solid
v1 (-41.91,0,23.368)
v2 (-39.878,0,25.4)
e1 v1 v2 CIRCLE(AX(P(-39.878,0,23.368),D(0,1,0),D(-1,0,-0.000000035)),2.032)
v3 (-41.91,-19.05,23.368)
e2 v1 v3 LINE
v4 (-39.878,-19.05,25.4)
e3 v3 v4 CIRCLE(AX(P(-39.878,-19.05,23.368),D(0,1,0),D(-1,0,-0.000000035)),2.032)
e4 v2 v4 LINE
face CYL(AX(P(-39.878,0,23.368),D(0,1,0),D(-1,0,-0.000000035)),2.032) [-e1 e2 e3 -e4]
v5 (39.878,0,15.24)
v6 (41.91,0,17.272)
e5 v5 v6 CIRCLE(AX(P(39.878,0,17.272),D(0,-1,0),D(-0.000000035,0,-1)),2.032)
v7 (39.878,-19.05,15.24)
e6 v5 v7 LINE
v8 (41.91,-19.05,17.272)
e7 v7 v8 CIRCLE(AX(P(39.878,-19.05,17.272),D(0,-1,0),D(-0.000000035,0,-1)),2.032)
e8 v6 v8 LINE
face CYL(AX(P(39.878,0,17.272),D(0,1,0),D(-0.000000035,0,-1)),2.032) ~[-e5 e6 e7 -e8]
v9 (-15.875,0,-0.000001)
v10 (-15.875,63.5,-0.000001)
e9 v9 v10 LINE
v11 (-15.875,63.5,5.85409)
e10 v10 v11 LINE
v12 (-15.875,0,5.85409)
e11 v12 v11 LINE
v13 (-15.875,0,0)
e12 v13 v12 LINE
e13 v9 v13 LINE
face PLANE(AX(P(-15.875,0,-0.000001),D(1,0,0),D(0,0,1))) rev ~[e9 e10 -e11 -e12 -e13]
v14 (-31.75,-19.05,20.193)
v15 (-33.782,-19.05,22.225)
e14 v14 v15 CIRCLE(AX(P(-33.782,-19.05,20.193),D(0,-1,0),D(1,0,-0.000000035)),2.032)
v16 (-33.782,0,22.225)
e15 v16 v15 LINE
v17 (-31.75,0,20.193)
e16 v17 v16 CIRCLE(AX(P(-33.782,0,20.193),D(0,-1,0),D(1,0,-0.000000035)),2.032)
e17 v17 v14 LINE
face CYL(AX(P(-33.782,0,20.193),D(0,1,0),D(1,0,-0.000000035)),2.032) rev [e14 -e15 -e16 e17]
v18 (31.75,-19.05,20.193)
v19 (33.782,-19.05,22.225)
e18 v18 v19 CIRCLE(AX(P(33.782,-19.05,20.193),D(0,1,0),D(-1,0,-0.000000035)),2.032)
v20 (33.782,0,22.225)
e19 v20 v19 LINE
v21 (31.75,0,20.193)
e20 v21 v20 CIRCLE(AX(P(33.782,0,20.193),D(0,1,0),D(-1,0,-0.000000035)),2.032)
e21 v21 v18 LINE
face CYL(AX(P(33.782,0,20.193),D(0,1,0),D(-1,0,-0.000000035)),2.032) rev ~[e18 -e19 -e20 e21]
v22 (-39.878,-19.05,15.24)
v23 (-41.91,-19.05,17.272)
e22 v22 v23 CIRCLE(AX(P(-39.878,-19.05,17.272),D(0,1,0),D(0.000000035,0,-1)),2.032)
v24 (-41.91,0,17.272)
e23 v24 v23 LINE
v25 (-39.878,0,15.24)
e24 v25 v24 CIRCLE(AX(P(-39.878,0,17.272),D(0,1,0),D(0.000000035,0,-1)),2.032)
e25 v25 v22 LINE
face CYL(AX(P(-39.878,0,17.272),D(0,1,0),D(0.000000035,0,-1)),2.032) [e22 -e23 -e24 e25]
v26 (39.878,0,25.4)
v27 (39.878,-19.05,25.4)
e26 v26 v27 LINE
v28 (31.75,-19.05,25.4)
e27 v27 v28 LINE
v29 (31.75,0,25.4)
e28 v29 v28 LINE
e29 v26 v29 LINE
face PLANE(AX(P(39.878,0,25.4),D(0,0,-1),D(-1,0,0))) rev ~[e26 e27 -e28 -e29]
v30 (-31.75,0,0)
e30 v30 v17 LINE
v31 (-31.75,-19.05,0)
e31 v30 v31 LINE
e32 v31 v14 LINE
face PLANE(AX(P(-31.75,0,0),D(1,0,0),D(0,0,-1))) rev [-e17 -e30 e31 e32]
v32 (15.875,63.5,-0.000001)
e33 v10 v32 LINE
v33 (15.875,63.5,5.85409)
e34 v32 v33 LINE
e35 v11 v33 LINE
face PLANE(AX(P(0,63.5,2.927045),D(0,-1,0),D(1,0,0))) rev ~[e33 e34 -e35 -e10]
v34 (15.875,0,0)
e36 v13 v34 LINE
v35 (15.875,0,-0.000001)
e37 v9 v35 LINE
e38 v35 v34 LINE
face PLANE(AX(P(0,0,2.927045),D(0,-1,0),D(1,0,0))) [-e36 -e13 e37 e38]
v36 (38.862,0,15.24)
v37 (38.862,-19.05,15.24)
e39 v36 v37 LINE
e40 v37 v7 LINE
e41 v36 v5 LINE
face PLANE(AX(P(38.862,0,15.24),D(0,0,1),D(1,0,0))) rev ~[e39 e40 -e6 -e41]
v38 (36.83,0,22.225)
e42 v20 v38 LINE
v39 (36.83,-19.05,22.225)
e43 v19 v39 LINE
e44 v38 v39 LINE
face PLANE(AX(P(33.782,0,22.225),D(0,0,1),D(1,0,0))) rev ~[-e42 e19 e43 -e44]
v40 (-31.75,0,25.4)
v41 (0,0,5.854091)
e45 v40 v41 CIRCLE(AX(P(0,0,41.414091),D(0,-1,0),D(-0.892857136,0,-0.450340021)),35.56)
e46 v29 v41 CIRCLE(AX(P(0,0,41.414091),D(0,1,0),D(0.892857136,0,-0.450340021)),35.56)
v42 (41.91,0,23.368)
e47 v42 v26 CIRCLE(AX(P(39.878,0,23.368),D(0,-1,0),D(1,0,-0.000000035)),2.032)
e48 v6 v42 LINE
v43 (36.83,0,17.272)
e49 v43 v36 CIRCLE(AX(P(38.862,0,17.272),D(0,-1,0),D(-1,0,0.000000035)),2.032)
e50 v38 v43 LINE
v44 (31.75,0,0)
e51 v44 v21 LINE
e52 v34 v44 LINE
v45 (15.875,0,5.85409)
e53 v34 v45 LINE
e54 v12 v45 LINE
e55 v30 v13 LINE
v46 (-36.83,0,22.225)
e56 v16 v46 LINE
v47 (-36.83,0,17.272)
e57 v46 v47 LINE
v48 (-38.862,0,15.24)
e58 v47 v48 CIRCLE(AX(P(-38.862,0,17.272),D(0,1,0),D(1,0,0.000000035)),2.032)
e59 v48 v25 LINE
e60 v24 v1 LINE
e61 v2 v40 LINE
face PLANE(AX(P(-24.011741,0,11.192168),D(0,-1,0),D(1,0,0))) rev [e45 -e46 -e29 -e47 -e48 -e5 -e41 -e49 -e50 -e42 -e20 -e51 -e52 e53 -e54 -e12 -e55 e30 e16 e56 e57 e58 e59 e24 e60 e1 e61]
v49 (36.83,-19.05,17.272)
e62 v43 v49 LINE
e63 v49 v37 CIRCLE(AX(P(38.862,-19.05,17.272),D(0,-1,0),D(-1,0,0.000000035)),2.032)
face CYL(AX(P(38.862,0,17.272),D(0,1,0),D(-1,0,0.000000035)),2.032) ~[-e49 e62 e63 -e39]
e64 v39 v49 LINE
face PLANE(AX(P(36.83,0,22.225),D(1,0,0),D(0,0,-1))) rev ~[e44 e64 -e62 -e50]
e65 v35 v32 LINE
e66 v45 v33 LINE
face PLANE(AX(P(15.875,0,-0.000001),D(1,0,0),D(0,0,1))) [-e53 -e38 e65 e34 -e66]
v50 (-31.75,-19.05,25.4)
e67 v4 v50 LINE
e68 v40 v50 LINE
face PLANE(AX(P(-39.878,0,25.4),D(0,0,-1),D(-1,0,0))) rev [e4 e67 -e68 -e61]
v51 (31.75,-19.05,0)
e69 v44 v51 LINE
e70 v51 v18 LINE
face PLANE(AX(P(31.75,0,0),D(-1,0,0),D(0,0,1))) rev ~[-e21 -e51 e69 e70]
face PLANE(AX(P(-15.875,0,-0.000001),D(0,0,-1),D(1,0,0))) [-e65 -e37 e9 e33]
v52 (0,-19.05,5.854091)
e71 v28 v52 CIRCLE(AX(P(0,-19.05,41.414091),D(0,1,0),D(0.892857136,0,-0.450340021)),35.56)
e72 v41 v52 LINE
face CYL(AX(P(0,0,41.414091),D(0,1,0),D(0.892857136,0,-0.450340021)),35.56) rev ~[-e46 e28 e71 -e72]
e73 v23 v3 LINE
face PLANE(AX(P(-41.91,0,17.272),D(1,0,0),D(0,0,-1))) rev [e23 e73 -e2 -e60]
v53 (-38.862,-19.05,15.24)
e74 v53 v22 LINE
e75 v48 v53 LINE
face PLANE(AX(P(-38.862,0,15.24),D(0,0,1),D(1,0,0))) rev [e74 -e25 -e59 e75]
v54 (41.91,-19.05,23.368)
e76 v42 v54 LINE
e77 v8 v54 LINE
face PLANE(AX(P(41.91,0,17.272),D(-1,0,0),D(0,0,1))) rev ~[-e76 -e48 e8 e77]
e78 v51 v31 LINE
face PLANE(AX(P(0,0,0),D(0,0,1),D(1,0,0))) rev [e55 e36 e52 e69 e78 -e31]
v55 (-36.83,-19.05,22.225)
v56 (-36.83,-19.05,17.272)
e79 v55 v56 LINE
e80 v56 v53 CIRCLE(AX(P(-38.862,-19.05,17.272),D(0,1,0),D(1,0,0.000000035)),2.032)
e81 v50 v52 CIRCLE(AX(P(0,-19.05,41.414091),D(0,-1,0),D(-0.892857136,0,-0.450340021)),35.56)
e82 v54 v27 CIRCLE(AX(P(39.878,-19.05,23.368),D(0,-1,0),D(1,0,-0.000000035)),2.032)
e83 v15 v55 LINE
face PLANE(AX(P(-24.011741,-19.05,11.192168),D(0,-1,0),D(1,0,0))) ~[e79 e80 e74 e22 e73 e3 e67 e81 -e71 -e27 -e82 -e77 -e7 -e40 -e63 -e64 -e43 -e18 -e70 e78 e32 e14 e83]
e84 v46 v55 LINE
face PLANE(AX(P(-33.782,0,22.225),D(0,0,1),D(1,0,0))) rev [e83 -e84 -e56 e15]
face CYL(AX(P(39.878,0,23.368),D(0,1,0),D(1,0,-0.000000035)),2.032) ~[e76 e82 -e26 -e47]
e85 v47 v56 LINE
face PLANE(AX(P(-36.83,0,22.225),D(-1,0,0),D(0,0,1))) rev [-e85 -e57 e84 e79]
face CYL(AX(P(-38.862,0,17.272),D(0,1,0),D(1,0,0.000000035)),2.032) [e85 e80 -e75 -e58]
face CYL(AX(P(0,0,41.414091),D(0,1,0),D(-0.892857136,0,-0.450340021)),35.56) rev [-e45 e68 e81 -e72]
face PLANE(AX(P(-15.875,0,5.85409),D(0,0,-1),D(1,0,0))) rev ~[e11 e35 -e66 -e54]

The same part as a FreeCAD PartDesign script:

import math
import FreeCAD as App
import Part
import Sketcher

V = App.Vector
Q = App.Units.Quantity

doc = App.newDocument("Part")
params = doc.addObject("Spreadsheet::Sheet", "Params")
for row, (alias, value) in enumerate([
    ("sketch1_radius", "1.4 in"),
    ("sketch1_radius2", "0.08 in"),
    ("sketch1_width", "1.25 in"),
    ("sketch1_width2", "0.12 in"),
    ("sketch1_width3", "0.04 in"),
    ("pad1_length", "0.75 in"),
    ("sketch2_width", "1.25 in"),
    ("pad2_length", "2.5 in"),
], start=1):
    params.set(f"A{row}", alias)
    params.set(f"B{row}", "=" + value)
    params.setAlias(f"B{row}", alias)

body = doc.addObject("PartDesign::Body", "Body")

sketch1 = doc.addObject("Sketcher::SketchObject", "Sketch")
body.addObject(sketch1)
sketch1.AttachmentSupport = (doc.XZ_Plane, [""])
sketch1.MapMode = "FlatFace"
sketch1.addGeometry(Part.LineSegment(V(0, 5.9, 0), V(0, 0, 0)), False)
sketch1.addGeometry(Part.LineSegment(V(0, 0, 0), V(31.8, 0, 0)), False)
sketch1.addGeometry(Part.LineSegment(V(31.8, 0, 0), V(31.8, 20.2, 0)), False)
sketch1.addGeometry(Part.ArcOfCircle(Part.Circle(V(33.8, 20.2, 0), V(0, 0, 1), 2), math.radians(90), math.radians(180)), False)
sketch1.addGeometry(Part.LineSegment(V(33.8, 22.2, 0), V(36.8, 22.2, 0)), False)
sketch1.addGeometry(Part.LineSegment(V(36.8, 22.2, 0), V(36.8, 17.3, 0)), False)
sketch1.addGeometry(Part.ArcOfCircle(Part.Circle(V(38.9, 17.3, 0), V(0, 0, 1), 2), math.radians(180), math.radians(270)), False)
sketch1.addGeometry(Part.LineSegment(V(38.9, 15.2, 0), V(39.9, 15.2, 0)), False)
sketch1.addGeometry(Part.ArcOfCircle(Part.Circle(V(39.9, 17.3, 0), V(0, 0, 1), 2), math.radians(-90), math.radians(0)), False)
sketch1.addGeometry(Part.LineSegment(V(41.9, 17.3, 0), V(41.9, 23.4, 0)), False)
sketch1.addGeometry(Part.ArcOfCircle(Part.Circle(V(39.9, 23.4, 0), V(0, 0, 1), 2), math.radians(0), math.radians(90)), False)
sketch1.addGeometry(Part.LineSegment(V(39.9, 25.4, 0), V(31.8, 25.4, 0)), False)
sketch1.addGeometry(Part.ArcOfCircle(Part.Circle(V(0, 41.4, 0), V(0, 0, 1), 35.6), math.radians(-90), math.radians(-27)), False)
sketch1.addConstraint(Sketcher.Constraint("Coincident", 0, 2, 1, 1))
sketch1.addConstraint(Sketcher.Constraint("Coincident", 1, 2, 2, 1))
sketch1.addConstraint(Sketcher.Constraint("Tangent", 2, 2, 3, 2))
sketch1.addConstraint(Sketcher.Constraint("Tangent", 3, 1, 4, 1))
sketch1.addConstraint(Sketcher.Constraint("Coincident", 4, 2, 5, 1))
sketch1.addConstraint(Sketcher.Constraint("Tangent", 5, 2, 6, 1))
sketch1.addConstraint(Sketcher.Constraint("Tangent", 6, 2, 7, 1))
sketch1.addConstraint(Sketcher.Constraint("Tangent", 7, 2, 8, 1))
sketch1.addConstraint(Sketcher.Constraint("Tangent", 8, 2, 9, 1))
sketch1.addConstraint(Sketcher.Constraint("Tangent", 9, 2, 10, 1))
sketch1.addConstraint(Sketcher.Constraint("Tangent", 10, 2, 11, 1))
sketch1.addConstraint(Sketcher.Constraint("Coincident", 11, 2, 12, 2))
sketch1.addConstraint(Sketcher.Constraint("Coincident", 12, 1, 0, 1))
sketch1.addConstraint(Sketcher.Constraint("Vertical", 0))
sketch1.addConstraint(Sketcher.Constraint("Horizontal", 1))
sketch1.addConstraint(Sketcher.Constraint("Vertical", 2))
sketch1.addConstraint(Sketcher.Constraint("Horizontal", 4))
sketch1.addConstraint(Sketcher.Constraint("Vertical", 5))
sketch1.addConstraint(Sketcher.Constraint("Horizontal", 7))
sketch1.addConstraint(Sketcher.Constraint("Vertical", 9))
sketch1.addConstraint(Sketcher.Constraint("Horizontal", 11))
sketch1.addConstraint(Sketcher.Constraint("Coincident", 0, 2, -1, 1))
sketch1.addConstraint(Sketcher.Constraint("Equal", 3, 6))
sketch1.addConstraint(Sketcher.Constraint("Equal", 6, 8))
sketch1.addConstraint(Sketcher.Constraint("Equal", 8, 10))
sketch1.addConstraint(Sketcher.Constraint("PointOnObject", 12, 3, -2))
sketch1.addConstraint(Sketcher.Constraint("Vertical", 2, 2, 11, 2))
sketch1.addConstraint(Sketcher.Constraint("Radius", 12, Q("1.4 in")))
sketch1.addConstraint(Sketcher.Constraint("Radius", 3, Q("0.08 in")))
sketch1.addConstraint(Sketcher.Constraint("DistanceY", -1, 1, 10, 2, Q("1 in")))
sketch1.addConstraint(Sketcher.Constraint("DistanceX", 1, 1, 1, 2, Q("1.25 in")))
sketch1.addConstraint(Sketcher.Constraint("DistanceX", 4, 1, 4, 2, Q("0.12 in")))
sketch1.addConstraint(Sketcher.Constraint("DistanceX", 7, 1, 7, 2, Q("0.04 in")))
sketch1.addConstraint(Sketcher.Constraint("DistanceY", 9, 1, 9, 2, Q("0.24 in")))
sketch1.addConstraint(Sketcher.Constraint("DistanceY", 2, 1, 2, 2, Q("0.795 in")))
sketch1.setExpression("Constraints[27]", "Params.sketch1_radius")
sketch1.setExpression("Constraints[28]", "Params.sketch1_radius2")
sketch1.setExpression("Constraints[30]", "Params.sketch1_width")
sketch1.setExpression("Constraints[31]", "Params.sketch1_width2")
sketch1.setExpression("Constraints[32]", "Params.sketch1_width3")
pad1 = doc.addObject("PartDesign::Pad", "Pad")
body.addObject(pad1)
pad1.Profile = sketch1
pad1.setExpression("Length", "Params.pad1_length")
body2 = doc.addObject("PartDesign::Body", "Body001")
doc.recompute()

body2.BaseFeature = body
doc.recompute()

mirroring = doc.addObject("Part::Mirroring", "Mirroring")
mirroring.Source = body
mirroring.Base = V(0, 0, 0)
mirroring.Normal = V(1, 0, 0)
body3 = doc.addObject("PartDesign::Body", "Body002")
body3.BaseFeature = mirroring
boolean = doc.addObject("PartDesign::Boolean", "Boolean")
body2.addObject(boolean)
boolean.Type = "Fuse"
boolean.addObjects([body3])
doc.recompute()

sketch2 = doc.addObject("Sketcher::SketchObject", "Sketch001")
body2.addObject(sketch2)
sketch2.AttachmentSupport = (doc.getObject("XZ_Plane001"), [""])
sketch2.MapMode = "FlatFace"
sketch2.addGeometry(Part.LineSegment(V(-16, 6, 0), V(-16, 0, 0)), False)
sketch2.addGeometry(Part.LineSegment(V(-16, 0, 0), V(16, 0, 0)), False)
sketch2.addGeometry(Part.LineSegment(V(16, 0, 0), V(16, 6, 0)), False)
sketch2.addGeometry(Part.LineSegment(V(16, 6, 0), V(-16, 6, 0)), False)
sketch2.addConstraint(Sketcher.Constraint("Coincident", 0, 2, 1, 1))
sketch2.addConstraint(Sketcher.Constraint("Coincident", 1, 2, 2, 1))
sketch2.addConstraint(Sketcher.Constraint("Coincident", 2, 2, 3, 1))
sketch2.addConstraint(Sketcher.Constraint("Coincident", 3, 2, 0, 1))
sketch2.addConstraint(Sketcher.Constraint("Vertical", 0))
sketch2.addConstraint(Sketcher.Constraint("Horizontal", 1))
sketch2.addConstraint(Sketcher.Constraint("Vertical", 2))
sketch2.addConstraint(Sketcher.Constraint("Horizontal", 3))
sketch2.addConstraint(Sketcher.Constraint("Symmetric", 0, 2, 1, 2, -1, 1))
sketch2.addConstraint(Sketcher.Constraint("DistanceX", 1, 1, 1, 2, Q("1.25 in")))
sketch2.addConstraint(Sketcher.Constraint("DistanceY", 0, 2, 0, 1, 5.854091))
sketch2.setExpression("Constraints[9]", "Params.sketch2_width")
pad2 = doc.addObject("PartDesign::Pad", "Pad001")
body2.addObject(pad2)
pad2.Profile = sketch2
pad2.setExpression("Length", "Params.pad2_length")
pad2.Reversed = True
mirroring.Visibility = False

doc.recompute()
